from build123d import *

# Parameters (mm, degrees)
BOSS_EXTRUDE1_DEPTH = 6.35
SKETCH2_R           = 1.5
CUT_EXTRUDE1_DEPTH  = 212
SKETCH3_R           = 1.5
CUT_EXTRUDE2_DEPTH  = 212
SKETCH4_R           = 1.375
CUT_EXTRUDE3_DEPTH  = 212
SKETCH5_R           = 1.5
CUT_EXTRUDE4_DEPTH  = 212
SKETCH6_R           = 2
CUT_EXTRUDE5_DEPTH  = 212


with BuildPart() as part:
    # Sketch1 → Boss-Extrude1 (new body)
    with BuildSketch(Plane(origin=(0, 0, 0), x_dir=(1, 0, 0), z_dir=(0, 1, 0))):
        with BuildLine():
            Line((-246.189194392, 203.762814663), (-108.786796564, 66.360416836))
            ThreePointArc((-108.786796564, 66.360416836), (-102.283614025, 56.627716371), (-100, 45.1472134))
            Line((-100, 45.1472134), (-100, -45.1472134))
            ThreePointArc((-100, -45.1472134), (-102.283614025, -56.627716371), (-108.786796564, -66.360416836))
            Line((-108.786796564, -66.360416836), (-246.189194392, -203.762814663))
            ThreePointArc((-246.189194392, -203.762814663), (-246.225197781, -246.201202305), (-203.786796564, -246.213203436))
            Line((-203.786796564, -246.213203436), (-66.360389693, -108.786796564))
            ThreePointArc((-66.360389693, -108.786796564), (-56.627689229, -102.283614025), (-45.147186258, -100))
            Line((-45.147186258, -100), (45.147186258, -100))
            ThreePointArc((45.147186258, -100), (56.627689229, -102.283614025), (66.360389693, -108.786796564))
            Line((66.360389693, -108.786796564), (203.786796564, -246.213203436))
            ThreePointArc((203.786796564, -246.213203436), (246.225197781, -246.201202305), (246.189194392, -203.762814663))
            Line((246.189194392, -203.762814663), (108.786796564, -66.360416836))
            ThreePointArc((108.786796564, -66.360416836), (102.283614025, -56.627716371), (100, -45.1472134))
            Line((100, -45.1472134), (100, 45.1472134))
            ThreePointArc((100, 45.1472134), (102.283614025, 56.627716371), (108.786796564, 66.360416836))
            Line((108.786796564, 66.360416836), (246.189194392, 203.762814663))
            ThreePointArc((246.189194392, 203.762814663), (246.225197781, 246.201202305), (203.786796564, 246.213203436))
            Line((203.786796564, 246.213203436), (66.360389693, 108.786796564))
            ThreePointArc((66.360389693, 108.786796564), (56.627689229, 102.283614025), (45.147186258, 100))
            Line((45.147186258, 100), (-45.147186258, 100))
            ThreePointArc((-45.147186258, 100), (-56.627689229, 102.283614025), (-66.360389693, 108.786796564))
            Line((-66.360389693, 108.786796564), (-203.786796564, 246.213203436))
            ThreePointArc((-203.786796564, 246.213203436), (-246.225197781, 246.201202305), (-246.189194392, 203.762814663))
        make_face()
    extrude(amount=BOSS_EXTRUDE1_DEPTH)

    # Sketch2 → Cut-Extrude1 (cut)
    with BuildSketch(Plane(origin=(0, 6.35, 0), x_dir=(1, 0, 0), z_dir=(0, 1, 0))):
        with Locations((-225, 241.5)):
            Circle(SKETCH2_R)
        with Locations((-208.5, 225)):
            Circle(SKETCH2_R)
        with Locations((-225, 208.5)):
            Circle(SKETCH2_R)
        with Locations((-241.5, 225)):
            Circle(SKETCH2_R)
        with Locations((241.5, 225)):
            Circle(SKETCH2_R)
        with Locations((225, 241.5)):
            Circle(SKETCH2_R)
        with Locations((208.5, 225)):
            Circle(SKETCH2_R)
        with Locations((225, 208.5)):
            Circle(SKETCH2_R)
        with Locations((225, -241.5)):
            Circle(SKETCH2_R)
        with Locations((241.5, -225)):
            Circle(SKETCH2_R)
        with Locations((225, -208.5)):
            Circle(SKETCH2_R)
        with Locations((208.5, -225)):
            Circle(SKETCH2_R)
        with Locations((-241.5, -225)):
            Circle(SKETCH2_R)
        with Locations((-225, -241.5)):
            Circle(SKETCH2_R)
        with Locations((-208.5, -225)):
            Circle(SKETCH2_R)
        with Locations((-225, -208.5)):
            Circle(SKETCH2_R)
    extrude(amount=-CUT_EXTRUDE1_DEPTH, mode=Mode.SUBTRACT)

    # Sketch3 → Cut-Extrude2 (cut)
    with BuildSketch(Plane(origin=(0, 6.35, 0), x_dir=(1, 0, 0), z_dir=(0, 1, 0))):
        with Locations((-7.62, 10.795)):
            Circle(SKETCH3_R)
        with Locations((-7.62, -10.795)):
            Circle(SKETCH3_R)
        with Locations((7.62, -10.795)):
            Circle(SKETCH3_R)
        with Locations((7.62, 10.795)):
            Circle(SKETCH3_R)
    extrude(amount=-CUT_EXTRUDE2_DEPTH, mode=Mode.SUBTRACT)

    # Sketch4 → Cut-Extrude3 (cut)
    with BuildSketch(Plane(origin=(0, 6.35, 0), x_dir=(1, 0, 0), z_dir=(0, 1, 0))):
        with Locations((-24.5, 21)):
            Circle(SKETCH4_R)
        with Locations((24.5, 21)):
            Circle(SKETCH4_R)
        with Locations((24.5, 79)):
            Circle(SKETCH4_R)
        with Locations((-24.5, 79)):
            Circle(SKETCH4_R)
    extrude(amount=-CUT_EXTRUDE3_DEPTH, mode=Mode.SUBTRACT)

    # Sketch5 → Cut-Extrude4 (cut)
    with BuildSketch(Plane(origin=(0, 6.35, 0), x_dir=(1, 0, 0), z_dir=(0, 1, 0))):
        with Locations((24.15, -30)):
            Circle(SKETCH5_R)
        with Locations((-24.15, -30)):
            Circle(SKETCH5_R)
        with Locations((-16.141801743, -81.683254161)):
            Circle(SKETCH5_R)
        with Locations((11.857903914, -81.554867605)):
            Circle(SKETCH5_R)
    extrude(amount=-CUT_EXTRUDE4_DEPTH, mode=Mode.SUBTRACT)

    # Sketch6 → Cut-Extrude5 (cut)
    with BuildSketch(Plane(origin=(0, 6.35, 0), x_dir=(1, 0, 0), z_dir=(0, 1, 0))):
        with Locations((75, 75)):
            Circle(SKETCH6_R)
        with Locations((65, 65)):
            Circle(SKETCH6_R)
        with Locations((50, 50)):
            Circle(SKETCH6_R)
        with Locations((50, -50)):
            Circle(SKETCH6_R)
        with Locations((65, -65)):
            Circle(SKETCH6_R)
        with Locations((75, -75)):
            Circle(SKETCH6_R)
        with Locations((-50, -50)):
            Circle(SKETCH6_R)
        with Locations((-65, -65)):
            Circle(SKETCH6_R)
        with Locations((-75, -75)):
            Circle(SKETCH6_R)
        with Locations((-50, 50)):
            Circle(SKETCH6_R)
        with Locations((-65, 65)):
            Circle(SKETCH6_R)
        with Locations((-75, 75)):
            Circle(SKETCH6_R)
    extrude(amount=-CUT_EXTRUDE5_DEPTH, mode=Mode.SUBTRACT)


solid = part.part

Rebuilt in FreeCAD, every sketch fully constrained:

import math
import FreeCAD as App
import Part
import Sketcher

V = App.Vector

doc = App.newDocument("Part")
body = doc.addObject("PartDesign::Body", "Body")

# Sketch on XZ plane
sketch1 = body.newObject("Sketcher::SketchObject", "Sketch")
sketch1.AttachmentSupport = (doc.getObject("XZ_Plane"), [""])
sketch1.MapMode = "FlatFace"
sketch1.addGeometry([
    Part.LineSegment(V(-246.189194, -203.762815, 0), V(-108.786797, -66.360417, 0)),  # 0
    Part.ArcOfCircle(Part.Circle(V(-130, -45.147213, 0), V(0, 0, 1), 30), math.radians(-45), math.radians(0)),  # 1
    Part.LineSegment(V(-100, -45.147213, 0), V(-100, 45.147213, 0)),  # 2
    Part.ArcOfCircle(Part.Circle(V(-130, 45.147213, 0), V(0, 0, 1), 30), math.radians(0), math.radians(45)),  # 3
    Part.LineSegment(V(-108.786797, 66.360417, 0), V(-246.189194, 203.762815, 0)),  # 4
    Part.ArcOfCircle(Part.Circle(V(-225, 225, 0), V(0, 0, 1), 30), math.radians(45), math.radians(225.064811)),  # 5
    Part.LineSegment(V(-203.786797, 246.213203, 0), V(-66.36039, 108.786797, 0)),  # 6
    Part.ArcOfCircle(Part.Circle(V(-45.147186, 130, 0), V(0, 0, 1), 30), math.radians(-135), math.radians(-90)),  # 7
    Part.LineSegment(V(-45.147186, 100, 0), V(45.147186, 100, 0)),  # 8
    Part.ArcOfCircle(Part.Circle(V(45.147186, 130, 0), V(0, 0, 1), 30), math.radians(-90), math.radians(-45)),  # 9
    Part.LineSegment(V(66.36039, 108.786797, 0), V(203.786797, 246.213203, 0)),  # 10
    Part.ArcOfCircle(Part.Circle(V(225, 225, 0), V(0, 0, 1), 30), math.radians(-45.064811), math.radians(135)),  # 11
    Part.LineSegment(V(246.189194, 203.762815, 0), V(108.786797, 66.360417, 0)),  # 12
    Part.ArcOfCircle(Part.Circle(V(130, 45.147213, 0), V(0, 0, 1), 30), math.radians(135), math.radians(180)),  # 13
    Part.LineSegment(V(100, 45.147213, 0), V(100, -45.147213, 0)),  # 14
    Part.ArcOfCircle(Part.Circle(V(130, -45.147213, 0), V(0, 0, 1), 30), math.radians(-180), math.radians(-135)),  # 15
    Part.LineSegment(V(108.786797, -66.360417, 0), V(246.189194, -203.762815, 0)),  # 16
    Part.ArcOfCircle(Part.Circle(V(225, -225, 0), V(0, 0, 1), 30), math.radians(-135), math.radians(45.064811)),  # 17
    Part.LineSegment(V(203.786797, -246.213203, 0), V(66.36039, -108.786797, 0)),  # 18
    Part.ArcOfCircle(Part.Circle(V(45.147186, -130, 0), V(0, 0, 1), 30), math.radians(45), math.radians(90)),  # 19
    Part.LineSegment(V(45.147186, -100, 0), V(-45.147186, -100, 0)),  # 20
    Part.ArcOfCircle(Part.Circle(V(-45.147186, -130, 0), V(0, 0, 1), 30), math.radians(90), math.radians(135)),  # 21
    Part.LineSegment(V(-66.36039, -108.786797, 0), V(-203.786797, -246.213203, 0)),  # 22
    Part.ArcOfCircle(Part.Circle(V(-225, -225, 0), V(0, 0, 1), 30), math.radians(134.935189), math.radians(315)),  # 23
], False)
sketch1.addConstraint([
    Sketcher.Constraint("Tangent", 0, 2, 1, 1),
    Sketcher.Constraint("Tangent", 1, 2, 2, 1),
    Sketcher.Constraint("Tangent", 2, 2, 3, 1),
    Sketcher.Constraint("Tangent", 3, 2, 4, 1),
    Sketcher.Constraint("Coincident", 4, 2, 5, 2),
    Sketcher.Constraint("Tangent", 5, 1, 6, 1),
    Sketcher.Constraint("Tangent", 6, 2, 7, 1),
    Sketcher.Constraint("Tangent", 7, 2, 8, 1),
    Sketcher.Constraint("Tangent", 8, 2, 9, 1),
    Sketcher.Constraint("Tangent", 9, 2, 10, 1),
    Sketcher.Constraint("Tangent", 10, 2, 11, 2),
    Sketcher.Constraint("Coincident", 11, 1, 12, 1),
    Sketcher.Constraint("Tangent", 12, 2, 13, 1),
    Sketcher.Constraint("Tangent", 13, 2, 14, 1),
    Sketcher.Constraint("Tangent", 14, 2, 15, 1),
    Sketcher.Constraint("Tangent", 15, 2, 16, 1),
    Sketcher.Constraint("Coincident", 16, 2, 17, 2),
    Sketcher.Constraint("Tangent", 17, 1, 18, 1),
    Sketcher.Constraint("Tangent", 18, 2, 19, 1),
    Sketcher.Constraint("Tangent", 19, 2, 20, 1),
    Sketcher.Constraint("Tangent", 20, 2, 21, 1),
    Sketcher.Constraint("Tangent", 21, 2, 22, 1),
    Sketcher.Constraint("Tangent", 22, 2, 23, 2),
    Sketcher.Constraint("Coincident", 23, 1, 0, 1),
    Sketcher.Constraint("Vertical", 2),
    Sketcher.Constraint("Horizontal", 8),
    Sketcher.Constraint("Vertical", 14),
    Sketcher.Constraint("Horizontal", 20),
    Sketcher.Constraint("Equal", 1, 3),
    Sketcher.Constraint("Equal", 3, 5),
    Sketcher.Constraint("Equal", 5, 7),
    Sketcher.Constraint("Equal", 7, 9),
    Sketcher.Constraint("Equal", 9, 11),
    Sketcher.Constraint("Equal", 11, 13),
    Sketcher.Constraint("Equal", 13, 15),
    Sketcher.Constraint("Equal", 15, 17),
    Sketcher.Constraint("Equal", 17, 19),
    Sketcher.Constraint("Equal", 19, 21),
    Sketcher.Constraint("Equal", 21, 23),
    Sketcher.Constraint("Symmetric", 1, 3, 13, 3, -1, 1),
    Sketcher.Constraint("Symmetric", 5, 3, 17, 3, -1, 1),
    Sketcher.Constraint("Symmetric", 7, 3, 19, 3, -1, 1),
    Sketcher.Constraint("Symmetric", 11, 3, 23, 3, -1, 1),
    Sketcher.Constraint("Symmetric", 5, 3, 11, 3, -2),
    Sketcher.Constraint("Perpendicular", 0, 4),
    Sketcher.Constraint("Parallel", 4, 6),
    Sketcher.Constraint("Perpendicular", 6, 10),
    Sketcher.Constraint("Perpendicular", 12, 16),
    Sketcher.Constraint("Perpendicular", 18, 22),
    Sketcher.Constraint("Horizontal", 3, 3, 13, 3),
    Sketcher.Constraint("Horizontal", 1, 3, 15, 3),
    Sketcher.Constraint("Horizontal", 4, 2, 11, 1),
    Sketcher.Constraint("Vertical", 11, 1, 16, 2),
    Sketcher.Constraint("Radius", 1, 30.0),
    Sketcher.Constraint("DistanceX", 1, 3, -1, 1, 130.0),
    Sketcher.Constraint("DistanceX", 5, 3, -1, 1, 225.0),
    Sketcher.Constraint("DistanceY", -1, 1, 5, 3, 225.0),
    Sketcher.Constraint("DistanceY", -1, 1, 7, 3, 130.0),
    Sketcher.Constraint("DistanceY", 3, 3, 4, 2, 158.615601),
])
pad1 = body.newObject("PartDesign::Pad", "Pad")
pad1.Profile = sketch1
pad1.Length = 6.35
pad1.Reversed = True

# Sketch on XZ plane
sketch2 = body.newObject("Sketcher::SketchObject", "Sketch001")
sketch2.AttachmentSupport = (doc.getObject("XZ_Plane"), [""])
sketch2.MapMode = "FlatFace"
sketch2.AttachmentOffset = App.Placement(V(0, 0, -6.35), App.Rotation())
sketch2.addGeometry([
    Part.Circle(V(-225, -241.5, 0), V(0, 0, 1), 1.5),  # 0
    Part.Circle(V(-208.5, -225, 0), V(0, 0, 1), 1.5),  # 1
    Part.Circle(V(-225, -208.5, 0), V(0, 0, 1), 1.5),  # 2
    Part.Circle(V(-241.5, -225, 0), V(0, 0, 1), 1.5),  # 3
    Part.Circle(V(241.5, -225, 0), V(0, 0, 1), 1.5),  # 4
    Part.Circle(V(225, -241.5, 0), V(0, 0, 1), 1.5),  # 5
    Part.Circle(V(208.5, -225, 0), V(0, 0, 1), 1.5),  # 6
    Part.Circle(V(225, -208.5, 0), V(0, 0, 1), 1.5),  # 7
    Part.Circle(V(225, 241.5, 0), V(0, 0, 1), 1.5),  # 8
    Part.Circle(V(241.5, 225, 0), V(0, 0, 1), 1.5),  # 9
    Part.Circle(V(225, 208.5, 0), V(0, 0, 1), 1.5),  # 10
    Part.Circle(V(208.5, 225, 0), V(0, 0, 1), 1.5),  # 11
    Part.Circle(V(-241.5, 225, 0), V(0, 0, 1), 1.5),  # 12
    Part.Circle(V(-225, 241.5, 0), V(0, 0, 1), 1.5),  # 13
    Part.Circle(V(-208.5, 225, 0), V(0, 0, 1), 1.5),  # 14
    Part.Circle(V(-225, 208.5, 0), V(0, 0, 1), 1.5),  # 15
], False)
sketch2.addConstraint([
    Sketcher.Constraint("Equal", 0, 1),
    Sketcher.Constraint("Equal", 1, 2),
    Sketcher.Constraint("Equal", 2, 3),
    Sketcher.Constraint("Equal", 3, 4),
    Sketcher.Constraint("Equal", 4, 5),
    Sketcher.Constraint("Equal", 5, 6),
    Sketcher.Constraint("Equal", 6, 7),
    Sketcher.Constraint("Equal", 7, 8),
    Sketcher.Constraint("Equal", 8, 9),
    Sketcher.Constraint("Equal", 9, 10),
    Sketcher.Constraint("Equal", 10, 11),
    Sketcher.Constraint("Equal", 11, 12),
    Sketcher.Constraint("Equal", 12, 13),
    Sketcher.Constraint("Equal", 13, 14),
    Sketcher.Constraint("Equal", 14, 15),
    Sketcher.Constraint("Symmetric", 0, 3, 8, 3, -1, 1),
    Sketcher.Constraint("Symmetric", 3, 3, 9, 3, -1, 1),
    Sketcher.Constraint("Symmetric", 2, 3, 10, 3, -1, 1),
    Sketcher.Constraint("Symmetric", 1, 3, 11, 3, -1, 1),
    Sketcher.Constraint("Symmetric", 4, 3, 12, 3, -1, 1),
    Sketcher.Constraint("Symmetric", 5, 3, 13, 3, -1, 1),
    Sketcher.Constraint("Symmetric", 6, 3, 14, 3, -1, 1),
    Sketcher.Constraint("Symmetric", 7, 3, 15, 3, -1, 1),
    Sketcher.Constraint("Symmetric", 3, 3, 4, 3, -2),
    Sketcher.Constraint("Symmetric", 0, 3, 5, 3, -2),
    Sketcher.Constraint("Symmetric", 1, 3, 6, 3, -2),
    Sketcher.Constraint("Symmetric", 2, 3, 7, 3, -2),
    Sketcher.Constraint("Horizontal", 1, 3, 3, 3),
    Sketcher.Constraint("Vertical", 0, 3, 2, 3),
    Sketcher.Constraint("Diameter", 0, 3.0),
    Sketcher.Constraint("DistanceX", 0, 3, -1, 1, 225.0),
    Sketcher.Constraint("DistanceY", 1, 3, -1, 1, 225.0),
    Sketcher.Constraint("DistanceY", 0, 3, 2, 3, 33.0),
    Sketcher.Constraint("DistanceX", 3, 3, 1, 3, 33.0),
    Sketcher.Constraint("DistanceX", 1, 3, 4, 3, 450.0),
    Sketcher.Constraint("DistanceY", 7, 3, 8, 3, 450.0),
])
pocket1 = body.newObject("PartDesign::Pocket", "Pocket")
pocket1.Profile = sketch2
pocket1.Length = 212
pocket1.Reversed = True

# Sketch on XZ plane
sketch3 = body.newObject("Sketcher::SketchObject", "Sketch002")
sketch3.AttachmentSupport = (doc.getObject("XZ_Plane"), [""])
sketch3.MapMode = "FlatFace"
sketch3.AttachmentOffset = App.Placement(V(0, 0, -6.35), App.Rotation())
sketch3.addGeometry([
    Part.Circle(V(-7.62, -10.795, 0), V(0, 0, 1), 1.5),
    Part.Circle(V(-7.62, 10.795, 0), V(0, 0, 1), 1.5),
    Part.Circle(V(7.62, 10.795, 0), V(0, 0, 1), 1.5),
    Part.Circle(V(7.62, -10.795, 0), V(0, 0, 1), 1.5),
], False)
sketch3.addConstraint([
    Sketcher.Constraint("Equal", 0, 1),
    Sketcher.Constraint("Equal", 1, 2),
    Sketcher.Constraint("Equal", 2, 3),
    Sketcher.Constraint("Symmetric", 0, 3, 2, 3, -1, 1),
    Sketcher.Constraint("Symmetric", 1, 3, 3, 3, -1, 1),
    Sketcher.Constraint("Symmetric", 1, 3, 2, 3, -2),
    Sketcher.Constraint("Diameter", 0, 3.0),
    Sketcher.Constraint("DistanceX", 0, 3, -1, 1, 7.62),
    Sketcher.Constraint("DistanceY", 0, 3, 1, 3, 21.59),
])
pocket2 = body.newObject("PartDesign::Pocket", "Pocket001")
pocket2.Profile = sketch3
pocket2.Length = 212
pocket2.Reversed = True

# Sketch on XZ plane
sketch4 = body.newObject("Sketcher::SketchObject", "Sketch003")
sketch4.AttachmentSupport = (doc.getObject("XZ_Plane"), [""])
sketch4.MapMode = "FlatFace"
sketch4.AttachmentOffset = App.Placement(V(0, 0, -6.35), App.Rotation())
sketch4.addGeometry([
    Part.Circle(V(-24.5, -21, 0), V(0, 0, 1), 1.375),
    Part.Circle(V(24.5, -21, 0), V(0, 0, 1), 1.375),
    Part.Circle(V(24.5, -79, 0), V(0, 0, 1), 1.375),
    Part.Circle(V(-24.5, -79, 0), V(0, 0, 1), 1.375),
], False)
sketch4.addConstraint([
    Sketcher.Constraint("Equal", 0, 1),
    Sketcher.Constraint("Equal", 1, 2),
    Sketcher.Constraint("Equal", 2, 3),
    Sketcher.Constraint("Symmetric", 0, 3, 1, 3, -2),
    Sketcher.Constraint("Symmetric", 2, 3, 3, 3, -2),
    Sketcher.Constraint("Vertical", 1, 3, 2, 3),
    Sketcher.Constraint("Diameter", 0, 2.75),
    Sketcher.Constraint("DistanceY", 0, 3, -1, 1, 21.0),
    Sketcher.Constraint("DistanceY", 2, 3, -1, 1, 79.0),
    Sketcher.Constraint("DistanceX", 0, 3, 1, 3, 49.0),
])
pocket3 = body.newObject("PartDesign::Pocket", "Pocket002")
pocket3.Profile = sketch4
pocket3.Length = 212
pocket3.Reversed = True

# Sketch on XZ plane
sketch5 = body.newObject("Sketcher::SketchObject", "Sketch004")
sketch5.AttachmentSupport = (doc.getObject("XZ_Plane"), [""])
sketch5.MapMode = "FlatFace"
sketch5.AttachmentOffset = App.Placement(V(0, 0, -6.35), App.Rotation())
sketch5.addGeometry([
    Part.Circle(V(24.15, 30, 0), V(0, 0, 1), 1.5),
    Part.Circle(V(-24.15, 30, 0), V(0, 0, 1), 1.5),
    Part.Circle(V(-16.141802, 81.683254, 0), V(0, 0, 1), 1.5),
    Part.Circle(V(11.857904, 81.554868, 0), V(0, 0, 1), 1.5),
], False)
sketch5.addConstraint([
    Sketcher.Constraint("Equal", 0, 1),
    Sketcher.Constraint("Equal", 1, 2),
    Sketcher.Constraint("Equal", 2, 3),
    Sketcher.Constraint("Symmetric", 0, 3, 1, 3, -2),
    Sketcher.Constraint("Diameter", 0, 3.0),
    Sketcher.Constraint("DistanceY", -1, 1, 0, 3, 30.0),
    Sketcher.Constraint("DistanceX", 1, 3, 0, 3, 48.3),
    Sketcher.Constraint("DistanceX", 2, 3, -1, 1, 16.141802),
    Sketcher.Constraint("DistanceY", -1, 1, 2, 3, 81.683254),
    Sketcher.Constraint("DistanceX", -1, 1, 3, 3, 11.857904),
    Sketcher.Constraint("DistanceY", -1, 1, 3, 3, 81.554868),
])
pocket4 = body.newObject("PartDesign::Pocket", "Pocket003")
pocket4.Profile = sketch5
pocket4.Length = 212
pocket4.Reversed = True

# Sketch on XZ plane
sketch6 = body.newObject("Sketcher::SketchObject", "Sketch005")
sketch6.AttachmentSupport = (doc.getObject("XZ_Plane"), [""])
sketch6.MapMode = "FlatFace"
sketch6.AttachmentOffset = App.Placement(V(0, 0, -6.35), App.Rotation())
sketch6.addGeometry([
    Part.Circle(V(75, -75, 0), V(0, 0, 1), 2),  # 0
    Part.Circle(V(65, -65, 0), V(0, 0, 1), 2),  # 1
    Part.Circle(V(50, -50, 0), V(0, 0, 1), 2),  # 2
    Part.Circle(V(50, 50, 0), V(0, 0, 1), 2),  # 3
    Part.Circle(V(65, 65, 0), V(0, 0, 1), 2),  # 4
    Part.Circle(V(75, 75, 0), V(0, 0, 1), 2),  # 5
    Part.Circle(V(-50, 50, 0), V(0, 0, 1), 2),  # 6
    Part.Circle(V(-65, 65, 0), V(0, 0, 1), 2),  # 7
    Part.Circle(V(-75, 75, 0), V(0, 0, 1), 2),  # 8
    Part.Circle(V(-50, -50, 0), V(0, 0, 1), 2),  # 9
    Part.Circle(V(-65, -65, 0), V(0, 0, 1), 2),  # 10
    Part.Circle(V(-75, -75, 0), V(0, 0, 1), 2),  # 11
], False)
sketch6.addConstraint([
    Sketcher.Constraint("Equal", 0, 1),
    Sketcher.Constraint("Equal", 1, 2),
    Sketcher.Constraint("Equal", 2, 3),
    Sketcher.Constraint("Equal", 3, 4),
    Sketcher.Constraint("Equal", 4, 5),
    Sketcher.Constraint("Equal", 5, 6),
    Sketcher.Constraint("Equal", 6, 7),
    Sketcher.Constraint("Equal", 7, 8),
    Sketcher.Constraint("Equal", 8, 9),
    Sketcher.Constraint("Equal", 9, 10),
    Sketcher.Constraint("Equal", 10, 11),
    Sketcher.Constraint("Symmetric", 2, 3, 6, 3, -1, 1),
    Sketcher.Constraint("Symmetric", 1, 3, 7, 3, -1, 1),
    Sketcher.Constraint("Symmetric", 0, 3, 8, 3, -1, 1),
    Sketcher.Constraint("Symmetric", 3, 3, 9, 3, -1, 1),
    Sketcher.Constraint("Symmetric", 4, 3, 10, 3, -1, 1),
    Sketcher.Constraint("Symmetric", 5, 3, 11, 3, -1, 1),
    Sketcher.Constraint("Symmetric", 3, 3, 6, 3, -2),
    Sketcher.Constraint("Symmetric", 4, 3, 7, 3, -2),
    Sketcher.Constraint("Symmetric", 5, 3, 8, 3, -2),
    Sketcher.Constraint("Diameter", 0, 4.0),
    Sketcher.Constraint("DistanceX", -1, 1, 0, 3, 75.0),
    Sketcher.Constraint("DistanceY", 0, 3, -1, 1, 75.0),
    Sketcher.Constraint("DistanceX", -1, 1, 1, 3, 65.0),
    Sketcher.Constraint("DistanceY", 1, 3, -1, 1, 65.0),
    Sketcher.Constraint("DistanceX", -1, 1, 2, 3, 50.0),
    Sketcher.Constraint("DistanceY", 2, 3, -1, 1, 50.0),
])
pocket5 = body.newObject("PartDesign::Pocket", "Pocket004")
pocket5.Profile = sketch6
pocket5.Length = 212
pocket5.Reversed = True

doc.recompute()
